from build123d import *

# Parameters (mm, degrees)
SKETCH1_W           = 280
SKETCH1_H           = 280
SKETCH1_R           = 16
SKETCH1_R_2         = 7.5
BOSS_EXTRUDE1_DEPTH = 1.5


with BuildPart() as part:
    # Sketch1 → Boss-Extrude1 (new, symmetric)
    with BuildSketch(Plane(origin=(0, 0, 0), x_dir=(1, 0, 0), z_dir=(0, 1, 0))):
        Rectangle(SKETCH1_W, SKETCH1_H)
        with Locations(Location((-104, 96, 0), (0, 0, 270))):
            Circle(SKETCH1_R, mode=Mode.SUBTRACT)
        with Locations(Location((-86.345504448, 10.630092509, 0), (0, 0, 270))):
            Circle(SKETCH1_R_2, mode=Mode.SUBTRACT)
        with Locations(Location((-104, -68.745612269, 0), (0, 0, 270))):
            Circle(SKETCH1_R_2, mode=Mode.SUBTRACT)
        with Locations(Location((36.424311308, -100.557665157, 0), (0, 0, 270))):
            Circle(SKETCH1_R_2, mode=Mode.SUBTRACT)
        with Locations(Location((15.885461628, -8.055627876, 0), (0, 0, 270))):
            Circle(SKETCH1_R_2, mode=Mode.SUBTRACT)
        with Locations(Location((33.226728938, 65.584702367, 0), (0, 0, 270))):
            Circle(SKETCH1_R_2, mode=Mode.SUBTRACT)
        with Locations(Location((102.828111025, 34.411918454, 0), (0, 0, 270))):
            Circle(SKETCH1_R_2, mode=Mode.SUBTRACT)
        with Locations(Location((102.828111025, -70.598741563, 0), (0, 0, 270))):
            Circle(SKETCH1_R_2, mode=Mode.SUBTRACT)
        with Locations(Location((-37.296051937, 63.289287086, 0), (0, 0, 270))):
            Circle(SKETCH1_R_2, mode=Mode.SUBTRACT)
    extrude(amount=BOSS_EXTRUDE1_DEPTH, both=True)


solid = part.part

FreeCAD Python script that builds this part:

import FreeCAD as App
import Part
import Sketcher


def add_polygon(sketch, points):
    """Adds a closed chain of lines whose ends are joined by coincident constraints."""
    first, n = sketch.GeometryCount, len(points)
    for a, b in zip(points, points[1:] + points[:1]):
        sketch.addGeometry(Part.LineSegment(App.Vector(*a, 0), App.Vector(*b, 0)), False)
    for i in range(n):
        sketch.addConstraint(Sketcher.Constraint("Coincident", first + i, 2, first + (i + 1) % n, 1))

doc = App.newDocument("Part")
body = doc.addObject("PartDesign::Body", "Body")

sketch1 = body.newObject("Sketcher::SketchObject", "Sketch")
sketch1.AttachmentSupport = (doc.getObject("XZ_Plane"), [""])
sketch1.MapMode = "FlatFace"
add_polygon(sketch1, [(-140, -140), (-140, 140), (140, 140), (140, -140)])
sketch1.addGeometry(Part.Circle(App.Vector(-104, 69, 0), App.Vector(0, 0, 1), 8), False)
sketch1.addGeometry(Part.Circle(App.Vector(36, 101, 0), App.Vector(0, 0, 1), 8), False)
sketch1.addGeometry(Part.Circle(App.Vector(103, 71, 0), App.Vector(0, 0, 1), 8), False)
sketch1.addGeometry(Part.Circle(App.Vector(16, 8, 0), App.Vector(0, 0, 1), 8), False)
sketch1.addGeometry(Part.Circle(App.Vector(-86, -11, 0), App.Vector(0, 0, 1), 8), False)
sketch1.addGeometry(Part.Circle(App.Vector(-104, -96, 0), App.Vector(0, 0, 1), 16), False)
sketch1.addGeometry(Part.Circle(App.Vector(-37, -63, 0), App.Vector(0, 0, 1), 8), False)
sketch1.addGeometry(Part.Circle(App.Vector(103, -34, 0), App.Vector(0, 0, 1), 8), False)
sketch1.addGeometry(Part.Circle(App.Vector(33, -66, 0), App.Vector(0, 0, 1), 8), False)
sketch1.addConstraint([
    Sketcher.Constraint("Vertical", 0),
    Sketcher.Constraint("Horizontal", 1),
    Sketcher.Constraint("Vertical", 2),
    Sketcher.Constraint("Horizontal", 3),
    Sketcher.Constraint("Equal", 4, 5),
    Sketcher.Constraint("Equal", 5, 6),
    Sketcher.Constraint("Equal", 6, 7),
    Sketcher.Constraint("Equal", 7, 8),
    Sketcher.Constraint("Equal", 8, 10),
    Sketcher.Constraint("Equal", 10, 11),
    Sketcher.Constraint("Equal", 11, 12),
    Sketcher.Constraint("Symmetric", 0, 2, 2, 2, -1, 1),
    Sketcher.Constraint("Vertical", 4, 3, 9, 3),
    Sketcher.Constraint("Vertical", 6, 3, 11, 3),
    Sketcher.Constraint("Equal", 3, 0),
    Sketcher.Constraint("Diameter", 4, 15.0),
    Sketcher.Constraint("Diameter", 9, 32.0),
    Sketcher.Constraint("DistanceX", 1, 1, 1, 2, 280.0),
    Sketcher.Constraint("DistanceX", 4, 3, -1, 1, 104.0),
    Sketcher.Constraint("DistanceY", 9, 3, -1, 1, 96.0),
    Sketcher.Constraint("DistanceX", 5, 3, 6, 3, 66.4038),
    Sketcher.Constraint("DistanceY", 10, 3, 4, 3, 132.034899),
    Sketcher.Constraint("DistanceX", -1, 1, 5, 3, 36.424311),
    Sketcher.Constraint("DistanceY", -1, 1, 6, 3, 70.598742),
    Sketcher.Constraint("DistanceX", -1, 1, 7, 3, 15.885462),
    Sketcher.Constraint("DistanceX", 10, 3, -1, 1, 37.296052),
    Sketcher.Constraint("DistanceY", 11, 3, -1, 1, 34.411918),
    Sketcher.Constraint("DistanceX", -1, 1, 12, 3, 33.226729),
    Sketcher.Constraint("DistanceY", 4, 3, 6, 3, 1.853129),
    Sketcher.Constraint("DistanceY", 8, 3, 7, 3, 18.68572),
    Sketcher.Constraint("DistanceY", 12, 3, 7, 3, 73.64033),
    Sketcher.Constraint("DistanceY", -1, 1, 5, 3, 100.557665),
    Sketcher.Constraint("DistanceY", -1, 1, 7, 3, 8.055628),
    Sketcher.Constraint("DistanceX", 8, 3, -1, 1, 86.345504),
])
pad1 = body.newObject("PartDesign::Pad", "Pad")
pad1.Profile = sketch1
pad1.Length = 3
pad1.Midplane = True

doc.recompute()
